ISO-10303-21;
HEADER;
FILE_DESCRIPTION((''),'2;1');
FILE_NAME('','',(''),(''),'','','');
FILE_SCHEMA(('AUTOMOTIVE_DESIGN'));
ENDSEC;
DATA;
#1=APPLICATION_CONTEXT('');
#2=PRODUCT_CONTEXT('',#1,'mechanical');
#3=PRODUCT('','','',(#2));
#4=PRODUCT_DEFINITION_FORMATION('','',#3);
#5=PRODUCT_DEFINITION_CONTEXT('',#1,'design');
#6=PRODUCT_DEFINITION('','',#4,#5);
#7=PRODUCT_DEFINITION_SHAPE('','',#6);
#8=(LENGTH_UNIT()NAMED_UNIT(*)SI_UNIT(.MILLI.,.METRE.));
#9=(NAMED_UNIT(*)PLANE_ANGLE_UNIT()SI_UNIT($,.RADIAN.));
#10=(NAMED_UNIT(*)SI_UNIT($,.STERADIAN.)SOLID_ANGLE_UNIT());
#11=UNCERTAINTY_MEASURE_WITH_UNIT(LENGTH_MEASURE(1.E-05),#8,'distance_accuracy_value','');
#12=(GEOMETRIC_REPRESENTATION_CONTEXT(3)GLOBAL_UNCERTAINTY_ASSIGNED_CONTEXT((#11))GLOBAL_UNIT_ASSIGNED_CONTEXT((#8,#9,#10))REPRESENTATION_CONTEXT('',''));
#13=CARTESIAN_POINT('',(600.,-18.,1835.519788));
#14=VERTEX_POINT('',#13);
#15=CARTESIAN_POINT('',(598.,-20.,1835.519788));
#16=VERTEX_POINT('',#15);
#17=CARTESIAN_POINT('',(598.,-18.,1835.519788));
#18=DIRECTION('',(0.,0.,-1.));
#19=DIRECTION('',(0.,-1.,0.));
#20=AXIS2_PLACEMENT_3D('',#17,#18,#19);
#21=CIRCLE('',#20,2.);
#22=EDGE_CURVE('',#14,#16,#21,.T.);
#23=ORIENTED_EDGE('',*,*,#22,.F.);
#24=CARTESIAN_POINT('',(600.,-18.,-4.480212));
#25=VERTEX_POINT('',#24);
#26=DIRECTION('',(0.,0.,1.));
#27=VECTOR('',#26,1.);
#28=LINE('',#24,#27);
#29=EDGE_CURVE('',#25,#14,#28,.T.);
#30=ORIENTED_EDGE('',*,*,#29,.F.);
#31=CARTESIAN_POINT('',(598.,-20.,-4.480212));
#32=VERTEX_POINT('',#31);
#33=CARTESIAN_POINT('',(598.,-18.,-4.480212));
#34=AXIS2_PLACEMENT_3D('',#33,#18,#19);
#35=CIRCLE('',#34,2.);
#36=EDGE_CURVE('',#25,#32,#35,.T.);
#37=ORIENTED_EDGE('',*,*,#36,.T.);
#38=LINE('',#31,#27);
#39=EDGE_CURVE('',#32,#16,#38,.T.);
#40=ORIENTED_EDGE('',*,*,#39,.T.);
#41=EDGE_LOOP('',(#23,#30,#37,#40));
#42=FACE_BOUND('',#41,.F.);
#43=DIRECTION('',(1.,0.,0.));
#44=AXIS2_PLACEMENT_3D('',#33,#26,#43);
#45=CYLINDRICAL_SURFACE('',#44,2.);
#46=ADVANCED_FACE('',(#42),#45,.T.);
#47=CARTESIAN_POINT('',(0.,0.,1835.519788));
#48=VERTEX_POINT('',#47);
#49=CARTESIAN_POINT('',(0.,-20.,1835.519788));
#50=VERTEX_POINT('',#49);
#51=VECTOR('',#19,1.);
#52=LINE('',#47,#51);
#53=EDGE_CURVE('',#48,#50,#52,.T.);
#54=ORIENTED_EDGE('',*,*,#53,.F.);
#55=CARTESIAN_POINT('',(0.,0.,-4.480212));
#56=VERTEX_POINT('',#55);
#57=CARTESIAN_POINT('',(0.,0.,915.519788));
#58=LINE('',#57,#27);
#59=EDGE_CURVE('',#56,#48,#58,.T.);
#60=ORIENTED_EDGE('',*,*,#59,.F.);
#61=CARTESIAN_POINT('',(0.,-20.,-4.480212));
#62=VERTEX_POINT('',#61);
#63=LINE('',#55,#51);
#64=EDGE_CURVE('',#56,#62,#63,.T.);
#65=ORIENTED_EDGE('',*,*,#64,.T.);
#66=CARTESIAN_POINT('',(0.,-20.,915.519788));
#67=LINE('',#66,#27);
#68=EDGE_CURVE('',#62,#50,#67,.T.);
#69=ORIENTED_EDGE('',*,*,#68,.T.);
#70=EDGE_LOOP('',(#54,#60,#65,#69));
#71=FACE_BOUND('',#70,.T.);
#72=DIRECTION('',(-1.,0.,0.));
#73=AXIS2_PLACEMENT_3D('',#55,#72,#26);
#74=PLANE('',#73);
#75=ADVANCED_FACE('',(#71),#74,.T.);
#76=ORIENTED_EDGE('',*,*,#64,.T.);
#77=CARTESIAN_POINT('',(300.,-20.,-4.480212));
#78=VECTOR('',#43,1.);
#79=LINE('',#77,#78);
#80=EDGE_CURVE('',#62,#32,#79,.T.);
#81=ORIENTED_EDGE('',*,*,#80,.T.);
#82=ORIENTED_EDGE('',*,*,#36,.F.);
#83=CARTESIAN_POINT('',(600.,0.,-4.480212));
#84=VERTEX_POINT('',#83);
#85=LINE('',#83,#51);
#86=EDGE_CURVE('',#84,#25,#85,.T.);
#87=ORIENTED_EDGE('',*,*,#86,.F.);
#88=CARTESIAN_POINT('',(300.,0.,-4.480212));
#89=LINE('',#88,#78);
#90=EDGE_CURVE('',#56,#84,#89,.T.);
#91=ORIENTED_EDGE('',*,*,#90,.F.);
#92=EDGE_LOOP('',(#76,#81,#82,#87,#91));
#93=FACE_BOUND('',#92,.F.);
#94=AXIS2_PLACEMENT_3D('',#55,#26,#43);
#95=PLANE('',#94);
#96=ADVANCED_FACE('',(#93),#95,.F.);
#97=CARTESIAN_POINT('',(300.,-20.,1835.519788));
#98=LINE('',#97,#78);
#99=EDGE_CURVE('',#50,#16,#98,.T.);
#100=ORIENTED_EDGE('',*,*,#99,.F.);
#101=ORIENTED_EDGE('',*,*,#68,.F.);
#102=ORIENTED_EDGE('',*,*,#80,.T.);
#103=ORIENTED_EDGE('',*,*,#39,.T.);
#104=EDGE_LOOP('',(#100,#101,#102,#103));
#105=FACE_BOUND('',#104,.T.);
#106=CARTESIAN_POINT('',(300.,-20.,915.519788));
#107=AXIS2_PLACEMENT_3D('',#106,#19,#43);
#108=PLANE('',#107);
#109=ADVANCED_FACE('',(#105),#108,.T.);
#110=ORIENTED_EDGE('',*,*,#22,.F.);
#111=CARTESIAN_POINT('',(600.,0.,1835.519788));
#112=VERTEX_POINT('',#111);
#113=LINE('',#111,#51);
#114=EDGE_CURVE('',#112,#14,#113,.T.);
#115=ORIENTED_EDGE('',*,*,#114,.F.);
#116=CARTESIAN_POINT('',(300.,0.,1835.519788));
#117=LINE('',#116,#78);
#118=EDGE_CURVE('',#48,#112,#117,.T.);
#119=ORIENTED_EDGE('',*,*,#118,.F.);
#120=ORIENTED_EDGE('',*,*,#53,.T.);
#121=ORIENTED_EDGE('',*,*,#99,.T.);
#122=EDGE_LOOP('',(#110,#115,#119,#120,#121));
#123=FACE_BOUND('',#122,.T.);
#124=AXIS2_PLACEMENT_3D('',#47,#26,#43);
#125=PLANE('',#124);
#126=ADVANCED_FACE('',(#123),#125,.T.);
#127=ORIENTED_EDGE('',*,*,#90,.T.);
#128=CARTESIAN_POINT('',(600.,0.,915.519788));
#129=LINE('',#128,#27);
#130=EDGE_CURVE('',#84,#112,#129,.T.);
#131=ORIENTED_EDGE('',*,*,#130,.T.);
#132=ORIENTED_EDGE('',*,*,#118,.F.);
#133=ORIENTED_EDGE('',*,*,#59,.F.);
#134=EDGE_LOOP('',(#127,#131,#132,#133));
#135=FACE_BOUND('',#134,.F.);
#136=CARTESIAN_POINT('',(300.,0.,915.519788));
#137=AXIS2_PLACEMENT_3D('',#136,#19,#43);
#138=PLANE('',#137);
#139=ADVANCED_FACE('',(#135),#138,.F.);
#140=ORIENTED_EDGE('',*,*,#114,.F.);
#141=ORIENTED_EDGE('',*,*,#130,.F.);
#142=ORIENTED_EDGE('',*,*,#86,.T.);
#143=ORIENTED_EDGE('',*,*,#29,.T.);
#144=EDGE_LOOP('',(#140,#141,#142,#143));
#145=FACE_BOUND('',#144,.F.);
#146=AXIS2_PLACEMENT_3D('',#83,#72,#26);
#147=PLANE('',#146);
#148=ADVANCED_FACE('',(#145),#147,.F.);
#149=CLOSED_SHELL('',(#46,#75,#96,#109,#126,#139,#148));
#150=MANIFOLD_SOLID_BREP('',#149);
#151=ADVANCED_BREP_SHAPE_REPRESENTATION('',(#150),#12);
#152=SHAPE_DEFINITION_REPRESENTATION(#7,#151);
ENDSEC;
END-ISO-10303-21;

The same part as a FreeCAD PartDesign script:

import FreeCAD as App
import Part
import Sketcher
Q = App.Units.Quantity


def edges_at(feature, points):
    """Names of the edges that pass closest to the given points."""
    edges = feature.Shape.Edges
    near = lambda p: min(range(len(edges)), key=lambda i: edges[i].distToShape(Part.Vertex(*p))[0])
    return sorted({f"Edge{near(p) + 1}" for p in points})

doc = App.newDocument("Part")
params = doc.addObject("Spreadsheet::Sheet", "Params")
for row, (alias, value) in enumerate([
    ("sketch1_width", "600 mm"),
    ("sketch1_height", "1840 mm"),
    ("pad1_length", "20 mm"),
    ("fillet_radius", "2 mm"),
], start=1):
    params.set(f"A{row}", alias)
    params.set(f"B{row}", "=" + value)
    params.setAlias(f"B{row}", alias)

body = doc.addObject("PartDesign::Body", "Body")

sketch1 = body.newObject("Sketcher::SketchObject", "Sketch")
sketch1.AttachmentSupport = (doc.getObject("XZ_Plane"), [""])
sketch1.MapMode = "FlatFace"
sketch1.addGeometry([
    Part.LineSegment(App.Vector(0, 1836, 0), App.Vector(0, -4, 0)),
    Part.LineSegment(App.Vector(0, -4, 0), App.Vector(600, -4, 0)),
    Part.LineSegment(App.Vector(600, -4, 0), App.Vector(600, 1836, 0)),
    Part.LineSegment(App.Vector(600, 1836, 0), App.Vector(0, 1836, 0)),
], False)
sketch1.addConstraint([
    Sketcher.Constraint("Coincident", 0, 2, 1, 1),
    Sketcher.Constraint("Coincident", 1, 2, 2, 1),
    Sketcher.Constraint("Coincident", 2, 2, 3, 1),
    Sketcher.Constraint("Coincident", 3, 2, 0, 1),
    Sketcher.Constraint("Vertical", 0),
    Sketcher.Constraint("Horizontal", 1),
    Sketcher.Constraint("Vertical", 2),
    Sketcher.Constraint("Horizontal", 3),
    Sketcher.Constraint("PointOnObject", 0, 2, -2),
    Sketcher.Constraint("DistanceX", 1, 1, 1, 2, Q("600 mm")),
    Sketcher.Constraint("DistanceY", 0, 2, 0, 1, Q("1840 mm")),
    Sketcher.Constraint("DistanceY", -1, 1, 2, 2, Q("1835.519788 mm")),
])
sketch1.setExpression("Constraints[9]", "Params.sketch1_width")
sketch1.setExpression("Constraints[10]", "Params.sketch1_height")
pad1 = body.newObject("PartDesign::Pad", "Pad")
pad1.Profile = sketch1
pad1.setExpression("Length", "Params.pad1_length")
doc.recompute()

fillet = body.newObject("PartDesign::Fillet", "Fillet")
fillet.Base = (pad1, edges_at(pad1, [(600, -20, 915.52)]))
fillet.setExpression("Radius", "Params.fillet_radius")

doc.recompute()
